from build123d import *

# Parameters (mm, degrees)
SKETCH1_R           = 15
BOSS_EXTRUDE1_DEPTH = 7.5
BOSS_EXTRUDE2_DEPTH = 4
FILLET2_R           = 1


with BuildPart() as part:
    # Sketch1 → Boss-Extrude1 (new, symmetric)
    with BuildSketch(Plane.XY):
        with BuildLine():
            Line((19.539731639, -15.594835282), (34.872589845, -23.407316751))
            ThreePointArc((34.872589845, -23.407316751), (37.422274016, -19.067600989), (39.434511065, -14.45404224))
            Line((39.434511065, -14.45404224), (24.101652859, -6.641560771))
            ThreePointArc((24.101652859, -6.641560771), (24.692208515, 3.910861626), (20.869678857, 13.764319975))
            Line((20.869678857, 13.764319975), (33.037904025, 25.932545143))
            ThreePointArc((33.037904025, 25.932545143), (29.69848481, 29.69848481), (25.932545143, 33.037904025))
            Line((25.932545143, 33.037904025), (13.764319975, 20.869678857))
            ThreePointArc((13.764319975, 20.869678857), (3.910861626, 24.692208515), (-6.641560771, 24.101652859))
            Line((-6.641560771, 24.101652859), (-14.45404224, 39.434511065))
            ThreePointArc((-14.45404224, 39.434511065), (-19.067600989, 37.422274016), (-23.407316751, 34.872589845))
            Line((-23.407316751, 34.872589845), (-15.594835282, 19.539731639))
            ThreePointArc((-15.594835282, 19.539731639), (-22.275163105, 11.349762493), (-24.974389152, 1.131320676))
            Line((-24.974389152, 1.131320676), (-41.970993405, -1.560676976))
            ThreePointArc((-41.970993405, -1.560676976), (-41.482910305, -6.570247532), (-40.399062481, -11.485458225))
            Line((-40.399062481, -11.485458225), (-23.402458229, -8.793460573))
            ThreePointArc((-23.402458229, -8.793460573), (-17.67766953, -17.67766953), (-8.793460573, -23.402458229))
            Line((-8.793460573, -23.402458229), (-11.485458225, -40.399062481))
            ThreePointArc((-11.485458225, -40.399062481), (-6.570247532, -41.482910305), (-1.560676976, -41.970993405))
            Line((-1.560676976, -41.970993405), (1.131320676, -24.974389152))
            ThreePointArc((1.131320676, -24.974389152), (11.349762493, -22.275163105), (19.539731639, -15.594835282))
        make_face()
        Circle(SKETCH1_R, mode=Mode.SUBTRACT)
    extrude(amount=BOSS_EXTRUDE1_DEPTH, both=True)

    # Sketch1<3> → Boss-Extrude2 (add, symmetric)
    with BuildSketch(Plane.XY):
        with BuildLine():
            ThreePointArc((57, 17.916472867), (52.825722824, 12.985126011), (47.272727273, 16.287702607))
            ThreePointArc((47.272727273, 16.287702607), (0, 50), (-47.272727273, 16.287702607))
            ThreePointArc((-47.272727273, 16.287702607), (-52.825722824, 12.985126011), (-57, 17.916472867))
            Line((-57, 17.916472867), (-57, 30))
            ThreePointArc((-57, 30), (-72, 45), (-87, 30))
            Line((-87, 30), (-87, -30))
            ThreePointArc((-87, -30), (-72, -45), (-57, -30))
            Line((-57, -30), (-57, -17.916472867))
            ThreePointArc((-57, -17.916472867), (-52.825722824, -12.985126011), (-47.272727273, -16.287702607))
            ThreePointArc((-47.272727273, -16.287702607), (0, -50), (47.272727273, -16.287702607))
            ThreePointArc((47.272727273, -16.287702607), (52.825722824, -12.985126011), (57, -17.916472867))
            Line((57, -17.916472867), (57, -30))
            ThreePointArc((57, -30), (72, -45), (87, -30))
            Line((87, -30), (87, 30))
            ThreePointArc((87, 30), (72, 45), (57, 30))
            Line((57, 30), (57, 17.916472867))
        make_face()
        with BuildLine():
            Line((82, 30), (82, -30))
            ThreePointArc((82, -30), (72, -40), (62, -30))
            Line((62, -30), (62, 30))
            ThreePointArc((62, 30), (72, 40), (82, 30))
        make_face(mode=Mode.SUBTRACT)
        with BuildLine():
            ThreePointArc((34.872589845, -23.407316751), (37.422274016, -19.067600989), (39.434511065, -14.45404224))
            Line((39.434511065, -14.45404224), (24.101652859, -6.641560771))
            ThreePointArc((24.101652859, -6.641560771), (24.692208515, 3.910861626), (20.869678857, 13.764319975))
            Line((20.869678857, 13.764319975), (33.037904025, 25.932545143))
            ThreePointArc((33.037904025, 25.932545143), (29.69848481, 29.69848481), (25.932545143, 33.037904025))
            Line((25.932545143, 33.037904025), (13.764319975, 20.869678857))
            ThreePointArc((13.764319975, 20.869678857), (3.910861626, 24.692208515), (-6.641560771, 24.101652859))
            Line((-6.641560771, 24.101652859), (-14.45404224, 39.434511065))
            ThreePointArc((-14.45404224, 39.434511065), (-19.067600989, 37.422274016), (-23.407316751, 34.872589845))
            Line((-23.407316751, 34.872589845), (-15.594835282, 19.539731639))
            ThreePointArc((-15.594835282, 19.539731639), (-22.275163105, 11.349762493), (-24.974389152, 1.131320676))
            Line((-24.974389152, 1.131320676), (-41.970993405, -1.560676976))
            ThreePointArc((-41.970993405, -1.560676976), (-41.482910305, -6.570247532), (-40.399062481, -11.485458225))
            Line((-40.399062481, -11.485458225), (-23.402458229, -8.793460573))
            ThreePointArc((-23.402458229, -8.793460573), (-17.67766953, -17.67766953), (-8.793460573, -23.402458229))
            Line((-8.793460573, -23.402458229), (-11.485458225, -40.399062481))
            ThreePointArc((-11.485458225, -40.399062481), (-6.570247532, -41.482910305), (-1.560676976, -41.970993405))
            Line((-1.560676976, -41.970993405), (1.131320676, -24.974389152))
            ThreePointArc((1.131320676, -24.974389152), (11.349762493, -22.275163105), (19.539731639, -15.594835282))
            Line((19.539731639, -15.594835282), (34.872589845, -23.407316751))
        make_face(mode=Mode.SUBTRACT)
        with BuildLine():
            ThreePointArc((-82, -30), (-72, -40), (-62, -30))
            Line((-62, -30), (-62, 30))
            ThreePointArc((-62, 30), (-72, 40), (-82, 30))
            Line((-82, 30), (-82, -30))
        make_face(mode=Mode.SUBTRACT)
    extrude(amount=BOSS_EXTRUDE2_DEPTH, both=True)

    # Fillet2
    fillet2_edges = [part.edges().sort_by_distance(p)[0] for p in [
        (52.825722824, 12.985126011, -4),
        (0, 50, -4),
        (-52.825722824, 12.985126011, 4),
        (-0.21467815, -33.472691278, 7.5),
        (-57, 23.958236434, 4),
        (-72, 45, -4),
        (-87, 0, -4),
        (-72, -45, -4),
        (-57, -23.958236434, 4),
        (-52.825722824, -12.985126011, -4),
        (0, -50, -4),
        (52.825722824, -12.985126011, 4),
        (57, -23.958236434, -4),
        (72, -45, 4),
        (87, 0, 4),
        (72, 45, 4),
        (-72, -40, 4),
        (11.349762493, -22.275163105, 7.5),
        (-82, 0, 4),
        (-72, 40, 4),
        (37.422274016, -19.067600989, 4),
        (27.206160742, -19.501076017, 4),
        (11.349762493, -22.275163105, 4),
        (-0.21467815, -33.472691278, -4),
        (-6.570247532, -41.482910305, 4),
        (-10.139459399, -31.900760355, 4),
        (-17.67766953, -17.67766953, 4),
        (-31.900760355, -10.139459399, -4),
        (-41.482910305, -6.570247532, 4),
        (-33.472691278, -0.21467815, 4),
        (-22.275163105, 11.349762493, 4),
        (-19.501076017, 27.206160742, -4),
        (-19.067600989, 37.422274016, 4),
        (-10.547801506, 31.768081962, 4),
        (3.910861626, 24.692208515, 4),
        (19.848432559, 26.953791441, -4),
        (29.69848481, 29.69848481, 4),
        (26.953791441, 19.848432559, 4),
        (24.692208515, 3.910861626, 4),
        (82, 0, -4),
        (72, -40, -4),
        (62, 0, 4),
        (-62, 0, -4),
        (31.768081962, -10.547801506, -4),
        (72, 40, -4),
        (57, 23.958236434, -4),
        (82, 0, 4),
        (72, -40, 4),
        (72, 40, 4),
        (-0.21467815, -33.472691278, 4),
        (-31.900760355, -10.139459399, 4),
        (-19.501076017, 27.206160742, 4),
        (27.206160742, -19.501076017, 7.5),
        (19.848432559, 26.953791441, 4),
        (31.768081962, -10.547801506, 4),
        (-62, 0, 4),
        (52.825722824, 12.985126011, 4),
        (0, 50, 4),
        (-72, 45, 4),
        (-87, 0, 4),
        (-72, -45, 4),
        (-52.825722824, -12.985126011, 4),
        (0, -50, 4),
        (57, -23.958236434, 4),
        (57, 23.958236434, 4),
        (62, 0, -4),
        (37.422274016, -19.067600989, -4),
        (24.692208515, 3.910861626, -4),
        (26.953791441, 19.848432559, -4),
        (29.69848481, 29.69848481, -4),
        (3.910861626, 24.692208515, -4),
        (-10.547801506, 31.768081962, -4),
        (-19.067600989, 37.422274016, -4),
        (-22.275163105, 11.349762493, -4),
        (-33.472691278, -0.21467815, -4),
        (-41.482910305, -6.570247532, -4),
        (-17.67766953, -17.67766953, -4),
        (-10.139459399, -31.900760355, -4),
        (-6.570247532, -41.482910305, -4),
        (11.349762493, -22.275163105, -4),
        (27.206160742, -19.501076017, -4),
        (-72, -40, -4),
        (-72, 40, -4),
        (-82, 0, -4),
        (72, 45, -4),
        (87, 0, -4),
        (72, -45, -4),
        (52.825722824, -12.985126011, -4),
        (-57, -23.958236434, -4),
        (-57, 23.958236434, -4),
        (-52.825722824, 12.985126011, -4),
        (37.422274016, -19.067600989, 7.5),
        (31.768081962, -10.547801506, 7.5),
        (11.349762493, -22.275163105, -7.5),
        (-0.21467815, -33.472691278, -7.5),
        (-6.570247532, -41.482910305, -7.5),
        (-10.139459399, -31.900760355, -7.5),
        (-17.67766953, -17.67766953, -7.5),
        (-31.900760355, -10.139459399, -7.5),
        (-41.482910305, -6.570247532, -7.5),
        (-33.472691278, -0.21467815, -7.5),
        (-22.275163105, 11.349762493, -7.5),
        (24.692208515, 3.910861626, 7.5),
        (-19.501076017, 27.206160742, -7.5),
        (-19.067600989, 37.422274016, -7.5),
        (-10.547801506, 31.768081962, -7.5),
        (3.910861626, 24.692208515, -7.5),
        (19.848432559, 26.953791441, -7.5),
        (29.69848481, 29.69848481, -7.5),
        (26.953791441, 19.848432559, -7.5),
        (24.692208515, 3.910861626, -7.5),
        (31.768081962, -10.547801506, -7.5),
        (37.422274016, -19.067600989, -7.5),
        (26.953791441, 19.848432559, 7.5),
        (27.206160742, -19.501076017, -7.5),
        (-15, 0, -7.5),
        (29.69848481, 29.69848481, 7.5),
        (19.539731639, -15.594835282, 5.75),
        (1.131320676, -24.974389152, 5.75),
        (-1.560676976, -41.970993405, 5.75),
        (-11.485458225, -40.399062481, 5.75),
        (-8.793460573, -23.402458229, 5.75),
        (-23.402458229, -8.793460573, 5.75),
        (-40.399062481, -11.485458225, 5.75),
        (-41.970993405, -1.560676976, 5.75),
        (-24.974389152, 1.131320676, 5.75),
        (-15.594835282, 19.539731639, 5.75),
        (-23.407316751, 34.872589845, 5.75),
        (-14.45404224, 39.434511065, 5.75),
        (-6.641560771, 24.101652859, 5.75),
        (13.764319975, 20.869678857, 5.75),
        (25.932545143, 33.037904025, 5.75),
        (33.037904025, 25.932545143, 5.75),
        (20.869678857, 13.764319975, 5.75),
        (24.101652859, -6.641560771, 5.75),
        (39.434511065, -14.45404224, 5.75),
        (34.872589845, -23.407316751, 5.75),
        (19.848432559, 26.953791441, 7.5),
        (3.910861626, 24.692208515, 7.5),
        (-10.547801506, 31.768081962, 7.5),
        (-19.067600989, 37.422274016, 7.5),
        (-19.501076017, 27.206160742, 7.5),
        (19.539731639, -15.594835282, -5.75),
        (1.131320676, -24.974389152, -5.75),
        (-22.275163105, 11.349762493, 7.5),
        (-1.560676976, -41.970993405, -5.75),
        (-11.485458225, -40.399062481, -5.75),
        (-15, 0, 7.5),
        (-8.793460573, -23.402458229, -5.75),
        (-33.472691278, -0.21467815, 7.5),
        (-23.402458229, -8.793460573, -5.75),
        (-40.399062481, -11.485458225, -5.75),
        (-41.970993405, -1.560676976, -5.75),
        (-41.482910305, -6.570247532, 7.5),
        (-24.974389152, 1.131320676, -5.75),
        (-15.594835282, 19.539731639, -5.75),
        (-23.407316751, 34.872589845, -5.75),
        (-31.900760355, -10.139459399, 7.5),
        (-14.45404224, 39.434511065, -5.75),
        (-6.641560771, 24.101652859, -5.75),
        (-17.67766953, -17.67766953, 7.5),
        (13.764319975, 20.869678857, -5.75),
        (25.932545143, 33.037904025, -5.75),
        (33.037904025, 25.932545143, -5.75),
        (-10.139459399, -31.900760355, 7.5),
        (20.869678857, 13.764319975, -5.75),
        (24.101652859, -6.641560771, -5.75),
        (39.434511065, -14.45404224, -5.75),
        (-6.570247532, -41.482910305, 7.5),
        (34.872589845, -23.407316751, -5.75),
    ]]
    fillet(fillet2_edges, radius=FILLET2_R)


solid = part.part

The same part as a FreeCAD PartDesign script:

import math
import FreeCAD as App
import Part
import Sketcher

V = App.Vector
Q = App.Units.Quantity

doc = App.newDocument("Part")
body = doc.addObject("PartDesign::Body", "Body")

sketch1 = body.newObject("Sketcher::SketchObject", "Sketch")
sketch1.AttachmentSupport = (doc.getObject("XY_Plane"), [""])
sketch1.MapMode = "FlatFace"
sketch1.addGeometry([
    Part.LineSegment(V(20, -16, 0), V(35, -23, 0)),
    Part.ArcOfCircle(Part.Circle(V(0, 0, 0), V(0, 0, 1), 42), math.radians(-33.87), math.radians(-20.13)),
    Part.LineSegment(V(39, -14, 0), V(24, -7, 0)),
    Part.ArcOfCircle(Part.Circle(V(0, 0, 0), V(0, 0, 1), 25), math.radians(-15), math.radians(33)),
    Part.LineSegment(V(21, 14, 0), V(33, 26, 0)),
    Part.ArcOfCircle(Part.Circle(V(0, 0, 0), V(0, 0, 1), 42), math.radians(38.13), math.radians(51.87)),
    Part.LineSegment(V(26, 33, 0), V(14, 21, 0)),
    Part.ArcOfCircle(Part.Circle(V(0, 0, 0), V(0, 0, 1), 25), math.radians(57), math.radians(105)),
    Part.LineSegment(V(-7, 24, 0), V(-14, 39, 0)),
    Part.ArcOfCircle(Part.Circle(V(0, 0, 0), V(0, 0, 1), 42), math.radians(110.13), math.radians(123.87)),
    Part.LineSegment(V(-23, 35, 0), V(-16, 20, 0)),
    Part.ArcOfCircle(Part.Circle(V(0, 0, 0), V(0, 0, 1), 25), math.radians(129), math.radians(177)),
    Part.LineSegment(V(-25, 1, 0), V(-42, -2, 0)),
    Part.ArcOfCircle(Part.Circle(V(0, 0, 0), V(0, 0, 1), 42), math.radians(-177.87), math.radians(-164.13)),
    Part.LineSegment(V(-40, -11, 0), V(-23, -9, 0)),
    Part.ArcOfCircle(Part.Circle(V(0, 0, 0), V(0, 0, 1), 25), math.radians(-159), math.radians(-111)),
    Part.LineSegment(V(-9, -23, 0), V(-11, -40, 0)),
    Part.ArcOfCircle(Part.Circle(V(0, 0, 0), V(0, 0, 1), 42), math.radians(-105.87), math.radians(-92.13)),
    Part.LineSegment(V(-2, -42, 0), V(1, -25, 0)),
    Part.ArcOfCircle(Part.Circle(V(0, 0, 0), V(0, 0, 1), 25), math.radians(-87), math.radians(-39)),
    Part.Circle(V(0, 0, 0), V(0, 0, 1), 15),
], False)
sketch1.addConstraint([
    Sketcher.Constraint("Coincident", 0, 2, 1, 1),
    Sketcher.Constraint("Coincident", 1, 2, 2, 1),
    Sketcher.Constraint("Coincident", 2, 2, 3, 1),
    Sketcher.Constraint("Coincident", 3, 2, 4, 1),
    Sketcher.Constraint("Coincident", 4, 2, 5, 1),
    Sketcher.Constraint("Coincident", 5, 2, 6, 1),
    Sketcher.Constraint("Coincident", 6, 2, 7, 1),
    Sketcher.Constraint("Coincident", 7, 2, 8, 1),
    Sketcher.Constraint("Coincident", 8, 2, 9, 1),
    Sketcher.Constraint("Coincident", 9, 2, 10, 1),
    Sketcher.Constraint("Coincident", 10, 2, 11, 1),
    Sketcher.Constraint("Coincident", 11, 2, 12, 1),
    Sketcher.Constraint("Coincident", 12, 2, 13, 1),
    Sketcher.Constraint("Coincident", 13, 2, 14, 1),
    Sketcher.Constraint("Coincident", 14, 2, 15, 1),
    Sketcher.Constraint("Coincident", 15, 2, 16, 1),
    Sketcher.Constraint("Coincident", 16, 2, 17, 1),
    Sketcher.Constraint("Coincident", 17, 2, 18, 1),
    Sketcher.Constraint("Coincident", 18, 2, 19, 1),
    Sketcher.Constraint("Coincident", 19, 2, 0, 1),
    Sketcher.Constraint("Coincident", 1, 3, -1, 1),
    Sketcher.Constraint("Coincident", 3, 3, -1, 1),
    Sketcher.Constraint("Coincident", 5, 3, -1, 1),
    Sketcher.Constraint("Coincident", 7, 3, -1, 1),
    Sketcher.Constraint("Coincident", 9, 3, -1, 1),
    Sketcher.Constraint("Coincident", 11, 3, -1, 1),
    Sketcher.Constraint("Coincident", 13, 3, -1, 1),
    Sketcher.Constraint("Coincident", 15, 3, -1, 1),
    Sketcher.Constraint("Coincident", 17, 3, -1, 1),
    Sketcher.Constraint("Coincident", 19, 3, -1, 1),
    Sketcher.Constraint("Coincident", 20, 3, -1, 1),
    Sketcher.Constraint("Equal", 1, 5),
    Sketcher.Constraint("Equal", 3, 7),
    Sketcher.Constraint("Equal", 5, 9),
    Sketcher.Constraint("Equal", 7, 11),
    Sketcher.Constraint("Equal", 9, 13),
    Sketcher.Constraint("Equal", 11, 15),
    Sketcher.Constraint("Equal", 13, 17),
    Sketcher.Constraint("Equal", 15, 19),
    Sketcher.Constraint("Parallel", 0, 2),
    Sketcher.Constraint("Parallel", 4, 6),
    Sketcher.Constraint("Parallel", 8, 10),
    Sketcher.Constraint("Parallel", 12, 14),
    Sketcher.Constraint("Parallel", 16, 18),
    Sketcher.Constraint("Equal", 0, 2),
    Sketcher.Constraint("Equal", 2, 4),
    Sketcher.Constraint("Equal", 4, 6),
    Sketcher.Constraint("Equal", 6, 8),
    Sketcher.Constraint("Equal", 8, 10),
    Sketcher.Constraint("Equal", 10, 12),
    Sketcher.Constraint("Equal", 12, 14),
    Sketcher.Constraint("Equal", 14, 16),
    Sketcher.Constraint("Equal", 16, 18),
    Sketcher.Constraint("Diameter", 20, 30.0),
    Sketcher.Constraint("Radius", 1, 42.0),
    Sketcher.Constraint("Radius", 3, 25.0),
    Sketcher.Constraint("Angle", 0, Q("-27 deg")),
    Sketcher.Constraint("Angle", 4, Q("45 deg")),
    Sketcher.Constraint("Angle", 8, Q("117 deg")),
    Sketcher.Constraint("Angle", 12, Q("-171 deg")),
    Sketcher.Constraint("Angle", 16, Q("-99 deg")),
    Sketcher.Constraint("DistanceX", 14, 2, 16, 2, 11.917),
])
pad1 = body.newObject("PartDesign::Pad", "Pad")
pad1.Profile = sketch1
pad1.Length = 15
pad1.Midplane = True

sketch2 = body.newObject("Sketcher::SketchObject", "Sketch001")
sketch2.AttachmentSupport = (doc.getObject("XY_Plane"), [""])
sketch2.MapMode = "FlatFace"
sketch2.addGeometry([
    Part.ArcOfCircle(Part.Circle(V(52, 18, 0), V(0, 0, 1), 5), math.radians(-161), math.radians(0)),
    Part.ArcOfCircle(Part.Circle(V(0, 0, 0), V(0, 0, 1), 50), math.radians(19), math.radians(161)),
    Part.ArcOfCircle(Part.Circle(V(-52, 18, 0), V(0, 0, 1), 5), math.radians(180), math.radians(341)),
    Part.LineSegment(V(-57, 18, 0), V(-57, 30, 0)),
    Part.ArcOfCircle(Part.Circle(V(-72, 30, 0), V(0, 0, 1), 15), math.radians(0), math.radians(180)),
    Part.LineSegment(V(-87, 30, 0), V(-87, -30, 0)),
    Part.ArcOfCircle(Part.Circle(V(-72, -30, 0), V(0, 0, 1), 15), math.radians(180), math.radians(360)),
    Part.LineSegment(V(-57, -30, 0), V(-57, -18, 0)),
    Part.ArcOfCircle(Part.Circle(V(-52, -18, 0), V(0, 0, 1), 5), math.radians(19), math.radians(180)),
    Part.ArcOfCircle(Part.Circle(V(0, 0, 0), V(0, 0, 1), 50), math.radians(-161), math.radians(-19)),
    Part.ArcOfCircle(Part.Circle(V(52, -18, 0), V(0, 0, 1), 5), math.radians(0), math.radians(161)),
    Part.LineSegment(V(57, -18, 0), V(57, -30, 0)),
    Part.ArcOfCircle(Part.Circle(V(72, -30, 0), V(0, 0, 1), 15), math.radians(180), math.radians(360)),
    Part.LineSegment(V(87, -30, 0), V(87, 30, 0)),
    Part.ArcOfCircle(Part.Circle(V(72, 30, 0), V(0, 0, 1), 15), math.radians(0), math.radians(180)),
    Part.LineSegment(V(57, 30, 0), V(57, 18, 0)),
    Part.ArcOfCircle(Part.Circle(V(0, 0, 0), V(0, 0, 1), 42), math.radians(-33.87), math.radians(-20.13)),
    Part.LineSegment(V(35, -23, 0), V(20, -16, 0)),
    Part.ArcOfCircle(Part.Circle(V(0, 0, 0), V(0, 0, 1), 25), math.radians(-87), math.radians(-39)),
    Part.LineSegment(V(1, -25, 0), V(-2, -42, 0)),
    Part.ArcOfCircle(Part.Circle(V(0, 0, 0), V(0, 0, 1), 42), math.radians(-105.87), math.radians(-92.13)),
    Part.LineSegment(V(-11, -40, 0), V(-9, -23, 0)),
    Part.ArcOfCircle(Part.Circle(V(0, 0, 0), V(0, 0, 1), 25), math.radians(-159), math.radians(-111)),
    Part.LineSegment(V(-23, -9, 0), V(-40, -11, 0)),
    Part.ArcOfCircle(Part.Circle(V(0, 0, 0), V(0, 0, 1), 42), math.radians(-177.87), math.radians(-164.13)),
    Part.LineSegment(V(-42, -2, 0), V(-25, 1, 0)),
    Part.ArcOfCircle(Part.Circle(V(0, 0, 0), V(0, 0, 1), 25), math.radians(129), math.radians(177)),
    Part.LineSegment(V(-16, 20, 0), V(-23, 35, 0)),
    Part.ArcOfCircle(Part.Circle(V(0, 0, 0), V(0, 0, 1), 42), math.radians(110.13), math.radians(123.87)),
    Part.LineSegment(V(-14, 39, 0), V(-7, 24, 0)),
    Part.ArcOfCircle(Part.Circle(V(0, 0, 0), V(0, 0, 1), 25), math.radians(57), math.radians(105)),
    Part.LineSegment(V(14, 21, 0), V(26, 33, 0)),
    Part.ArcOfCircle(Part.Circle(V(0, 0, 0), V(0, 0, 1), 42), math.radians(38.13), math.radians(51.87)),
    Part.LineSegment(V(33, 26, 0), V(21, 14, 0)),
    Part.ArcOfCircle(Part.Circle(V(0, 0, 0), V(0, 0, 1), 25), math.radians(-15), math.radians(33)),
    Part.LineSegment(V(24, -7, 0), V(39, -14, 0)),
    Part.ArcOfCircle(Part.Circle(V(-72, -30, 0), V(0, 0, 1), 10), math.radians(180), math.radians(360)),
    Part.LineSegment(V(-82, -30, 0), V(-82, 30, 0)),
    Part.ArcOfCircle(Part.Circle(V(-72, 30, 0), V(0, 0, 1), 10), math.radians(0), math.radians(180)),
    Part.LineSegment(V(-62, 30, 0), V(-62, -30, 0)),
    Part.ArcOfCircle(Part.Circle(V(72, 30, 0), V(0, 0, 1), 10), math.radians(0), math.radians(180)),
    Part.LineSegment(V(82, 30, 0), V(82, -30, 0)),
    Part.ArcOfCircle(Part.Circle(V(72, -30, 0), V(0, 0, 1), 10), math.radians(180), math.radians(360)),
    Part.LineSegment(V(62, -30, 0), V(62, 30, 0)),
], False)
sketch2.addConstraint([
    Sketcher.Constraint("Tangent", 0, 1, 1, 1),
    Sketcher.Constraint("Tangent", 1, 2, 2, 2),
    Sketcher.Constraint("Tangent", 2, 1, 3, 1),
    Sketcher.Constraint("Tangent", 3, 2, 4, 1),
    Sketcher.Constraint("Tangent", 4, 2, 5, 1),
    Sketcher.Constraint("Tangent", 5, 2, 6, 1),
    Sketcher.Constraint("Tangent", 6, 2, 7, 1),
    Sketcher.Constraint("Tangent", 7, 2, 8, 2),
    Sketcher.Constraint("Tangent", 8, 1, 9, 1),
    Sketcher.Constraint("Tangent", 9, 2, 10, 2),
    Sketcher.Constraint("Tangent", 10, 1, 11, 1),
    Sketcher.Constraint("Tangent", 11, 2, 12, 1),
    Sketcher.Constraint("Tangent", 12, 2, 13, 1),
    Sketcher.Constraint("Tangent", 13, 2, 14, 1),
    Sketcher.Constraint("Tangent", 14, 2, 15, 1),
    Sketcher.Constraint("Tangent", 15, 2, 0, 2),
    Sketcher.Constraint("Coincident", 16, 1, 17, 1),
    Sketcher.Constraint("Coincident", 17, 2, 18, 2),
    Sketcher.Constraint("Coincident", 18, 1, 19, 1),
    Sketcher.Constraint("Coincident", 19, 2, 20, 2),
    Sketcher.Constraint("Coincident", 20, 1, 21, 1),
    Sketcher.Constraint("Coincident", 21, 2, 22, 2),
    Sketcher.Constraint("Coincident", 22, 1, 23, 1),
    Sketcher.Constraint("Coincident", 23, 2, 24, 2),
    Sketcher.Constraint("Coincident", 24, 1, 25, 1),
    Sketcher.Constraint("Coincident", 25, 2, 26, 2),
    Sketcher.Constraint("Coincident", 26, 1, 27, 1),
    Sketcher.Constraint("Coincident", 27, 2, 28, 2),
    Sketcher.Constraint("Coincident", 28, 1, 29, 1),
    Sketcher.Constraint("Coincident", 29, 2, 30, 2),
    Sketcher.Constraint("Coincident", 30, 1, 31, 1),
    Sketcher.Constraint("Coincident", 31, 2, 32, 2),
    Sketcher.Constraint("Coincident", 32, 1, 33, 1),
    Sketcher.Constraint("Coincident", 33, 2, 34, 2),
    Sketcher.Constraint("Coincident", 34, 1, 35, 1),
    Sketcher.Constraint("Coincident", 35, 2, 16, 2),
    Sketcher.Constraint("Tangent", 36, 1, 37, 1),
    Sketcher.Constraint("Tangent", 37, 2, 38, 2),
    Sketcher.Constraint("Tangent", 38, 1, 39, 1),
    Sketcher.Constraint("Tangent", 39, 2, 36, 2),
    Sketcher.Constraint("Tangent", 40, 1, 41, 1),
    Sketcher.Constraint("Tangent", 41, 2, 42, 2),
    Sketcher.Constraint("Tangent", 42, 1, 43, 1),
    Sketcher.Constraint("Tangent", 43, 2, 40, 2),
    Sketcher.Constraint("Vertical", 3),
    Sketcher.Constraint("Vertical", 5),
    Sketcher.Constraint("Vertical", 7),
    Sketcher.Constraint("Vertical", 11),
    Sketcher.Constraint("Vertical", 13),
    Sketcher.Constraint("Vertical", 15),
    Sketcher.Constraint("Vertical", 37),
    Sketcher.Constraint("Vertical", 39),
    Sketcher.Constraint("Vertical", 41),
    Sketcher.Constraint("Vertical", 43),
    Sketcher.Constraint("Coincident", 1, 3, -1, 1),
    Sketcher.Constraint("Coincident", 9, 3, -1, 1),
    Sketcher.Constraint("Coincident", 16, 3, -1, 1),
    Sketcher.Constraint("Coincident", 18, 3, -1, 1),
    Sketcher.Constraint("Coincident", 20, 3, -1, 1),
    Sketcher.Constraint("Coincident", 22, 3, -1, 1),
    Sketcher.Constraint("Coincident", 24, 3, -1, 1),
    Sketcher.Constraint("Coincident", 26, 3, -1, 1),
    Sketcher.Constraint("Coincident", 28, 3, -1, 1),
    Sketcher.Constraint("Coincident", 30, 3, -1, 1),
    Sketcher.Constraint("Coincident", 32, 3, -1, 1),
    Sketcher.Constraint("Coincident", 34, 3, -1, 1),
    Sketcher.Constraint("Coincident", 36, 3, 6, 3),
    Sketcher.Constraint("Coincident", 38, 3, 4, 3),
    Sketcher.Constraint("Coincident", 40, 3, 14, 3),
    Sketcher.Constraint("Coincident", 42, 3, 12, 3),
    Sketcher.Constraint("Equal", 0, 2),
    Sketcher.Constraint("Equal", 2, 8),
    Sketcher.Constraint("Equal", 1, 9),
    Sketcher.Constraint("Equal", 8, 10),
    Sketcher.Constraint("Equal", 6, 12),
    Sketcher.Constraint("Equal", 16, 20),
    Sketcher.Constraint("Equal", 18, 22),
    Sketcher.Constraint("Equal", 20, 24),
    Sketcher.Constraint("Equal", 22, 26),
    Sketcher.Constraint("Equal", 24, 28),
    Sketcher.Constraint("Equal", 26, 30),
    Sketcher.Constraint("Equal", 28, 32),
    Sketcher.Constraint("Equal", 30, 34),
    Sketcher.Constraint("Equal", 38, 40),
    Sketcher.Constraint("Symmetric", 4, 3, 12, 3, -1, 1),
    Sketcher.Constraint("Parallel", 19, 21),
    Sketcher.Constraint("Parallel", 23, 25),
    Sketcher.Constraint("Parallel", 27, 29),
    Sketcher.Constraint("Parallel", 31, 33),
    Sketcher.Constraint("Parallel", 17, 35),
    Sketcher.Constraint("Horizontal", 6, 3, 12, 3),
    Sketcher.Constraint("Horizontal", 4, 3, 14, 3),
    Sketcher.Constraint("Equal", 17, 19),
    Sketcher.Constraint("Equal", 19, 21),
    Sketcher.Constraint("Equal", 21, 23),
    Sketcher.Constraint("Equal", 23, 25),
    Sketcher.Constraint("Equal", 25, 27),
    Sketcher.Constraint("Equal", 27, 29),
    Sketcher.Constraint("Equal", 29, 31),
    Sketcher.Constraint("Equal", 31, 33),
    Sketcher.Constraint("Equal", 33, 35),
    Sketcher.Constraint("Radius", 0, 5.0),
    Sketcher.Constraint("Radius", 1, 50.0),
    Sketcher.Constraint("Radius", 4, 15.0),
    Sketcher.Constraint("Radius", 16, 42.0),
    Sketcher.Constraint("Radius", 18, 25.0),
    Sketcher.Constraint("Radius", 36, 10.0),
    Sketcher.Constraint("DistanceY", 5, 2, 5, 1, 60.0),
    Sketcher.Constraint("Angle", 17, Q("153 deg")),
    Sketcher.Constraint("Angle", 19, Q("-99 deg")),
    Sketcher.Constraint("Angle", 23, Q("-171 deg")),
    Sketcher.Constraint("Angle", 27, Q("117 deg")),
    Sketcher.Constraint("Angle", 31, Q("45 deg")),
    Sketcher.Constraint("DistanceX", -1, 1, 0, 3, 52.0),
    Sketcher.Constraint("Distance", 17, 17.208469),
])
pad2 = body.newObject("PartDesign::Pad", "Pad001")
pad2.Profile = sketch2
pad2.Length = 8
pad2.Midplane = True
doc.recompute()

fillet = body.newObject("PartDesign::Fillet", "Fillet")
fillet.Base = (pad2, ["Edge1"])
fillet.UseAllEdges = True
fillet.Radius = 1

doc.recompute()
